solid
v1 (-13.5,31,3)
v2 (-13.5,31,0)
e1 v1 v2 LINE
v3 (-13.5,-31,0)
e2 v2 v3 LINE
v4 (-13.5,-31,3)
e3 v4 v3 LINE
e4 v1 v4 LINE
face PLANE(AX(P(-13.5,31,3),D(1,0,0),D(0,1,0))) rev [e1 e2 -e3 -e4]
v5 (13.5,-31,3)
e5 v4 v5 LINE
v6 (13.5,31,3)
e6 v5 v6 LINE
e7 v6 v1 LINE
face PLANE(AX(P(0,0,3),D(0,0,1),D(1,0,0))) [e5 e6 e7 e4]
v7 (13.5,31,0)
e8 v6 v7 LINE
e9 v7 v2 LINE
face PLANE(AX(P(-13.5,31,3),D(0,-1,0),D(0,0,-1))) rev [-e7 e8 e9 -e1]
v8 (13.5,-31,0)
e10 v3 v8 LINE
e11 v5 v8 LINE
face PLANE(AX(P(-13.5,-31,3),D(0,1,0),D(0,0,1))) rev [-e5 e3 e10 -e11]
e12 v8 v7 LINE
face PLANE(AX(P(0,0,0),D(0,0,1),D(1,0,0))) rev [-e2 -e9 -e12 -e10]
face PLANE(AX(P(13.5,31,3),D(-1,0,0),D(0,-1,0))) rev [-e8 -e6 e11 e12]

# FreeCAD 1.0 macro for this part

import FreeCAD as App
import Part
import Sketcher
Q = App.Units.Quantity

doc = App.newDocument("Part")
body = doc.addObject("PartDesign::Body", "Body")

# Sketch on XY plane
sketch1 = body.newObject("Sketcher::SketchObject", "Sketch")
sketch1.AttachmentSupport = (doc.getObject("XY_Plane"), [""])
sketch1.MapMode = "FlatFace"
sketch1.addGeometry([
    Part.LineSegment(App.Vector(-13.5, 31, 0), App.Vector(-13.5, -31, 0)),
    Part.LineSegment(App.Vector(-13.5, -31, 0), App.Vector(13.5, -31, 0)),
    Part.LineSegment(App.Vector(13.5, -31, 0), App.Vector(13.5, 31, 0)),
    Part.LineSegment(App.Vector(13.5, 31, 0), App.Vector(-13.5, 31, 0)),
], False)
sketch1.addConstraint([
    Sketcher.Constraint("Coincident", 0, 2, 1, 1),
    Sketcher.Constraint("Coincident", 1, 2, 2, 1),
    Sketcher.Constraint("Coincident", 2, 2, 3, 1),
    Sketcher.Constraint("Coincident", 3, 2, 0, 1),
    Sketcher.Constraint("Vertical", 0),
    Sketcher.Constraint("Horizontal", 1),
    Sketcher.Constraint("Vertical", 2),
    Sketcher.Constraint("Horizontal", 3),
    Sketcher.Constraint("Symmetric", 0, 2, 2, 2, -1, 1),
    Sketcher.Constraint("DistanceX", 1, 1, 1, 2, Q("27 mm")),
    Sketcher.Constraint("DistanceY", 0, 2, 0, 1, Q("62 mm")),
])
pad1 = body.newObject("PartDesign::Pad", "Pad")
pad1.Profile = sketch1
pad1.Length = 3

doc.recompute()
